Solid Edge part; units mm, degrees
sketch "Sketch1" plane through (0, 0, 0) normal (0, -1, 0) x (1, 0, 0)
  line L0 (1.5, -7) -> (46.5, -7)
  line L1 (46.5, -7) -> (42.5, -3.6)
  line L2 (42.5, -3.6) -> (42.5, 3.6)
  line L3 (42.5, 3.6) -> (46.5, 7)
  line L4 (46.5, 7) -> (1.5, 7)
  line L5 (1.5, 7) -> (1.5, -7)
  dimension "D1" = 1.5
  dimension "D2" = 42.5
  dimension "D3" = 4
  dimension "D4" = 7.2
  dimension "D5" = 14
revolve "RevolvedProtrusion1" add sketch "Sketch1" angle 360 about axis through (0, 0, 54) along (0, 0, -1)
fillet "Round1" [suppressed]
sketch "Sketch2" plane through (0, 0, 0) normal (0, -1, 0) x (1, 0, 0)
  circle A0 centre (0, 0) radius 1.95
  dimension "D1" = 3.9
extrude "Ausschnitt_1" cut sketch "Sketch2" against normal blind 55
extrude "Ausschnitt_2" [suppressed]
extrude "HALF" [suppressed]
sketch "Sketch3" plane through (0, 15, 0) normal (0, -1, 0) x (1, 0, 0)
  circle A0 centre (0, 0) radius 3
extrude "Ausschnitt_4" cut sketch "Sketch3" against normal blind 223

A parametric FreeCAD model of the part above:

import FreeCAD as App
import Part
import Sketcher

doc = App.newDocument("Part")
body = doc.addObject("PartDesign::Body", "Body")

# Sketch on XZ plane
sketch1 = doc.addObject("Sketcher::SketchObject", "Sketch")
body.addObject(sketch1)
sketch1.AttachmentSupport = (doc.XZ_Plane, [""])
sketch1.MapMode = "FlatFace"
sketch1.addGeometry(Part.LineSegment(App.Vector(1.5, 7, 0), App.Vector(1.5, -7, 0)), False)
sketch1.addGeometry(Part.LineSegment(App.Vector(1.5, -7, 0), App.Vector(46.5, -7, 0)), False)
sketch1.addGeometry(Part.LineSegment(App.Vector(46.5, -7, 0), App.Vector(42.5, -3.6, 0)), False)
sketch1.addGeometry(Part.LineSegment(App.Vector(42.5, -3.6, 0), App.Vector(42.5, 3.6, 0)), False)
sketch1.addGeometry(Part.LineSegment(App.Vector(42.5, 3.6, 0), App.Vector(46.5, 7, 0)), False)
sketch1.addGeometry(Part.LineSegment(App.Vector(46.5, 7, 0), App.Vector(1.5, 7, 0)), False)
sketch1.addConstraint(Sketcher.Constraint("Coincident", 0, 2, 1, 1))
sketch1.addConstraint(Sketcher.Constraint("Coincident", 1, 2, 2, 1))
sketch1.addConstraint(Sketcher.Constraint("Coincident", 2, 2, 3, 1))
sketch1.addConstraint(Sketcher.Constraint("Coincident", 3, 2, 4, 1))
sketch1.addConstraint(Sketcher.Constraint("Coincident", 4, 2, 5, 1))
sketch1.addConstraint(Sketcher.Constraint("Coincident", 5, 2, 0, 1))
sketch1.addConstraint(Sketcher.Constraint("Vertical", 0))
sketch1.addConstraint(Sketcher.Constraint("Horizontal", 1))
sketch1.addConstraint(Sketcher.Constraint("Vertical", 3))
sketch1.addConstraint(Sketcher.Constraint("Horizontal", 5))
sketch1.addConstraint(Sketcher.Constraint("Symmetric", 1, 2, 4, 2, -1))
sketch1.addConstraint(Sketcher.Constraint("Equal", 2, 4))
sketch1.addConstraint(Sketcher.Constraint("DistanceX", -1, 1, 2, 2, 42.5))
sketch1.addConstraint(Sketcher.Constraint("DistanceX", 1, 1, 1, 2, 45.0))
sketch1.addConstraint(Sketcher.Constraint("DistanceY", 0, 2, 0, 1, 14.0))
sketch1.addConstraint(Sketcher.Constraint("DistanceY", 3, 1, 3, 2, 7.2))
sketch1.addConstraint(Sketcher.Constraint("DistanceX", 2, 2, 1, 2, 4.0))
revolution = doc.addObject("PartDesign::Revolution", "Revolution")
body.addObject(revolution)
revolution.Profile = sketch1
revolution.ReferenceAxis = (sketch1, ["V_Axis"])
revolution.Angle = 360

# Sketch on XZ plane
sketch2 = doc.addObject("Sketcher::SketchObject", "Sketch001")
body.addObject(sketch2)
sketch2.AttachmentSupport = (doc.XZ_Plane, [""])
sketch2.MapMode = "FlatFace"
sketch2.addGeometry(Part.Circle(App.Vector(0, 0, 0), App.Vector(0, 0, 1), 1.95), False)
sketch2.addConstraint(Sketcher.Constraint("Coincident", 0, 3, -1, 1))
sketch2.addConstraint(Sketcher.Constraint("Diameter", 0, 3.9))
pocket1 = doc.addObject("PartDesign::Pocket", "Pocket")
body.addObject(pocket1)
pocket1.Profile = sketch2
pocket1.Length = 55

# Sketch on XZ plane
sketch3 = doc.addObject("Sketcher::SketchObject", "Sketch002")
body.addObject(sketch3)
sketch3.AttachmentSupport = (doc.XZ_Plane, [""])
sketch3.MapMode = "FlatFace"
sketch3.AttachmentOffset = App.Placement(App.Vector(0, 0, -15), App.Rotation())
sketch3.addGeometry(Part.Circle(App.Vector(0, 0, 0), App.Vector(0, 0, 1), 3), False)
sketch3.addConstraint(Sketcher.Constraint("Coincident", 0, 3, -1, 1))
sketch3.addConstraint(Sketcher.Constraint("Diameter", 0, 6.0))
pocket2 = doc.addObject("PartDesign::Pocket", "Pocket001")
body.addObject(pocket2)
pocket2.Profile = sketch3
pocket2.Length = 223

doc.recompute()
